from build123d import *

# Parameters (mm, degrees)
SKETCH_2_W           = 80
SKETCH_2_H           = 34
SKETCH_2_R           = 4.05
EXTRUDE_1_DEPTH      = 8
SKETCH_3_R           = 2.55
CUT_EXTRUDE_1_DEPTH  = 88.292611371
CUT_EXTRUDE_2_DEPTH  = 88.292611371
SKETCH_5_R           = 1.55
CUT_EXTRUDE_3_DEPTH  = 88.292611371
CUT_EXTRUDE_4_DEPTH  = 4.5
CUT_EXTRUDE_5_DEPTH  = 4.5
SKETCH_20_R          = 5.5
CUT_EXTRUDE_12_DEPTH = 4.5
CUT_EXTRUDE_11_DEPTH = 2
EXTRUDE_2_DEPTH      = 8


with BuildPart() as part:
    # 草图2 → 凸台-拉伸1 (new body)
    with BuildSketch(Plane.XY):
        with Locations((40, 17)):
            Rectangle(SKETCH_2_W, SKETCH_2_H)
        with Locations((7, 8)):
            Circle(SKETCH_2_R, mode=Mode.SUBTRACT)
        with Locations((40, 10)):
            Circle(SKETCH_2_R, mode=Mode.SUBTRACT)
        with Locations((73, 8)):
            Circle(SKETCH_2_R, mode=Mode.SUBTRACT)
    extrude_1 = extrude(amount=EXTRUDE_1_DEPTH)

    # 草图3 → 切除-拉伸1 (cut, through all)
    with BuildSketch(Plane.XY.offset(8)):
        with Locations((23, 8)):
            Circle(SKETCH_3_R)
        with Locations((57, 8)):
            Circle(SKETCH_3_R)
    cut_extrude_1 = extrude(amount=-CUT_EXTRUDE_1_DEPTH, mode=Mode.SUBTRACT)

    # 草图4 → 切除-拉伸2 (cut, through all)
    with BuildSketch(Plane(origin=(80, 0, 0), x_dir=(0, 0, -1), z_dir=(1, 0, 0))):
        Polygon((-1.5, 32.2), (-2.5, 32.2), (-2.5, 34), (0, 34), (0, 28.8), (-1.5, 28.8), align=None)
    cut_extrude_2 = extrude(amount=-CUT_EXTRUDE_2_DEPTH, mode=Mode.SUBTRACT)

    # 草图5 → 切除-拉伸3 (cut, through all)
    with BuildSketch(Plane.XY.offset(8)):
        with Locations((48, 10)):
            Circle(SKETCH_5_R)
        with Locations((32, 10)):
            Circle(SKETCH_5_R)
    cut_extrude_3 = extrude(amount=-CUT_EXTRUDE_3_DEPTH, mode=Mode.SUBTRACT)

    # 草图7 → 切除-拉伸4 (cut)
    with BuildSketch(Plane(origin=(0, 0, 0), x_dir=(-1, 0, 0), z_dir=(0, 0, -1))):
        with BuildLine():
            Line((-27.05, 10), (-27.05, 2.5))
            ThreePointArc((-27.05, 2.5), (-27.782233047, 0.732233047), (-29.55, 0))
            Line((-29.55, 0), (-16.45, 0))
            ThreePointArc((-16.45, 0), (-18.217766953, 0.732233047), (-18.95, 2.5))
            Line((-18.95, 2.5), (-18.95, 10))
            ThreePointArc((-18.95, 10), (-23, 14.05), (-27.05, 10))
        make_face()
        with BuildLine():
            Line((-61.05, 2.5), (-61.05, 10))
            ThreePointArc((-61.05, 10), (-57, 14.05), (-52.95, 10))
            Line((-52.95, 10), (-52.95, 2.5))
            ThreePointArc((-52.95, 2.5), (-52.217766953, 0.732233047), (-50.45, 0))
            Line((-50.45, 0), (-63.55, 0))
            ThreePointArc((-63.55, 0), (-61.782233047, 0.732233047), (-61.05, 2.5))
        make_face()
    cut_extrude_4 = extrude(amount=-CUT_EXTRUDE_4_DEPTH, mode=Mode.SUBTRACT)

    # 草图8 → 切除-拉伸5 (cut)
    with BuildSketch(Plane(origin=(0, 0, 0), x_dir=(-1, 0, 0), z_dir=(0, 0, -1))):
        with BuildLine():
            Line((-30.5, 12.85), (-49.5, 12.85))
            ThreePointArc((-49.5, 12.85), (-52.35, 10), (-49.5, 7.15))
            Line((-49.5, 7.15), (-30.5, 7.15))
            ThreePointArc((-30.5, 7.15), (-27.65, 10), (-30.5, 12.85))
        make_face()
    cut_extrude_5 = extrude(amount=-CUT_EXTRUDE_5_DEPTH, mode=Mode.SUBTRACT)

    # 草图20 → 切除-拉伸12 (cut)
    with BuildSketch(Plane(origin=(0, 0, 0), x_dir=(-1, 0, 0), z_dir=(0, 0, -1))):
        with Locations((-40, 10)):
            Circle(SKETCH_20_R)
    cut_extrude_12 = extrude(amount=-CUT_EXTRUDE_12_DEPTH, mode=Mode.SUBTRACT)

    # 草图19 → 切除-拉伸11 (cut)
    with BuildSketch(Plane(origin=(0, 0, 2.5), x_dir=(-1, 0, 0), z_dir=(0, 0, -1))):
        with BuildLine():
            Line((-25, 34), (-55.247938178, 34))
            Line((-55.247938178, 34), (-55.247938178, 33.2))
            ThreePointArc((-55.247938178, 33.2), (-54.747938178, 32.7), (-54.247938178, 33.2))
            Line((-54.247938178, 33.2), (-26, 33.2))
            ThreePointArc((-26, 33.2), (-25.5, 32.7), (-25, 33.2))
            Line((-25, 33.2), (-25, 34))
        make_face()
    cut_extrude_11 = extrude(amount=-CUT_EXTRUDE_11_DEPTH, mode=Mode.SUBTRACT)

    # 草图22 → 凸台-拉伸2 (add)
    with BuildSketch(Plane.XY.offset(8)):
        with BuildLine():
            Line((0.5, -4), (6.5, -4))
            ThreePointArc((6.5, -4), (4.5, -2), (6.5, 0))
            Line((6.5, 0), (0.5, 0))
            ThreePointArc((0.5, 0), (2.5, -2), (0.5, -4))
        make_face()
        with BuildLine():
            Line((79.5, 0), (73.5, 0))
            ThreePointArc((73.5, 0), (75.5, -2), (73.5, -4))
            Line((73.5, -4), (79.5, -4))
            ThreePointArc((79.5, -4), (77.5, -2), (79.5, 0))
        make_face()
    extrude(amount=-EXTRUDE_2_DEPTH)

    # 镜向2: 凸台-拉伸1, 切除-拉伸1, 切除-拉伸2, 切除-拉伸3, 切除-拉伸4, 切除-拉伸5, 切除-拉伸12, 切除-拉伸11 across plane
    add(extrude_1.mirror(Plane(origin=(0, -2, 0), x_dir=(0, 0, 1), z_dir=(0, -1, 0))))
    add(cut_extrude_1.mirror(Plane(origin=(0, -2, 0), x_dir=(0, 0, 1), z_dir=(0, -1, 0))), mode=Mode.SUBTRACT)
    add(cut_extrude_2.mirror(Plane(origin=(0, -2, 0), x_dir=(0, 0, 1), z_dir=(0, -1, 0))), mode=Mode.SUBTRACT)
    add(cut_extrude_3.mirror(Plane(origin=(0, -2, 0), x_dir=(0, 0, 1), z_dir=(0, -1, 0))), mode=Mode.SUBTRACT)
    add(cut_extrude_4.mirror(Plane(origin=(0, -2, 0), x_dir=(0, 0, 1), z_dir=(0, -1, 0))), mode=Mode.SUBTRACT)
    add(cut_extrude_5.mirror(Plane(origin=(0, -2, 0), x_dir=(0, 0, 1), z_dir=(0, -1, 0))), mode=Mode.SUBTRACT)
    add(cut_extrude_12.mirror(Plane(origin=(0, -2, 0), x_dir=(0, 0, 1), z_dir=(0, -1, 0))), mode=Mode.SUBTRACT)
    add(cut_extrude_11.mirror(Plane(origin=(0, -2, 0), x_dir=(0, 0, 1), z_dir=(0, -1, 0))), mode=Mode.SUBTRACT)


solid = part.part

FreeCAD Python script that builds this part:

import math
import FreeCAD as App
import Part
import Sketcher

V = App.Vector


def add_polygon(sketch, points):
    """Adds a closed chain of lines whose ends are joined by coincident constraints."""
    first, n = sketch.GeometryCount, len(points)
    for a, b in zip(points, points[1:] + points[:1]):
        sketch.addGeometry(Part.LineSegment(App.Vector(*a, 0), App.Vector(*b, 0)), False)
    for i in range(n):
        sketch.addConstraint(Sketcher.Constraint("Coincident", first + i, 2, first + (i + 1) % n, 1))

doc = App.newDocument("Part")
body = doc.addObject("PartDesign::Body", "Body")

sketch1 = body.newObject("Sketcher::SketchObject", "Sketch")
sketch1.AttachmentSupport = (doc.getObject("XY_Plane"), [""])
sketch1.MapMode = "FlatFace"
add_polygon(sketch1, [(0, 34), (0, 0), (80, 0), (80, 34)])
sketch1.addGeometry(Part.Circle(V(7, 8, 0), V(0, 0, 1), 4.05), False)
sketch1.addGeometry(Part.Circle(V(73, 8, 0), V(0, 0, 1), 4.05), False)
sketch1.addGeometry(Part.Circle(V(40, 10, 0), V(0, 0, 1), 4.05), False)
sketch1.addConstraint([
    Sketcher.Constraint("Vertical", 0),
    Sketcher.Constraint("Horizontal", 1),
    Sketcher.Constraint("Vertical", 2),
    Sketcher.Constraint("Horizontal", 3),
    Sketcher.Constraint("Coincident", 0, 2, -1, 1),
    Sketcher.Constraint("Equal", 4, 5),
    Sketcher.Constraint("Equal", 5, 6),
    Sketcher.Constraint("Horizontal", 4, 3, 5, 3),
    Sketcher.Constraint("Diameter", 4, 8.1),
    Sketcher.Constraint("DistanceX", 1, 1, 1, 2, 80.0),
    Sketcher.Constraint("DistanceY", 0, 2, 0, 1, 34.0),
    Sketcher.Constraint("DistanceX", -1, 1, 4, 3, 7.0),
    Sketcher.Constraint("DistanceY", -1, 1, 4, 3, 8.0),
    Sketcher.Constraint("DistanceX", -1, 1, 5, 3, 73.0),
    Sketcher.Constraint("DistanceX", -1, 1, 6, 3, 40.0),
    Sketcher.Constraint("DistanceY", -1, 1, 6, 3, 10.0),
])
pad1 = body.newObject("PartDesign::Pad", "Pad")
pad1.Profile = sketch1
pad1.Length = 8

sketch2 = body.newObject("Sketcher::SketchObject", "Sketch001")
sketch2.AttachmentSupport = (doc.getObject("XY_Plane"), [""])
sketch2.MapMode = "FlatFace"
sketch2.AttachmentOffset = App.Placement(V(0, 0, 8), App.Rotation())
sketch2.addGeometry([
    Part.Circle(V(23, 8, 0), V(0, 0, 1), 2.55),
    Part.Circle(V(57, 8, 0), V(0, 0, 1), 2.55),
], False)
sketch2.addConstraint([
    Sketcher.Constraint("Equal", 0, 1),
    Sketcher.Constraint("Horizontal", 0, 3, 1, 3),
    Sketcher.Constraint("Diameter", 0, 5.1),
    Sketcher.Constraint("DistanceX", -1, 1, 0, 3, 23.0),
    Sketcher.Constraint("DistanceY", -1, 1, 0, 3, 8.0),
    Sketcher.Constraint("DistanceX", -1, 1, 1, 3, 57.0),
])
pocket1 = body.newObject("PartDesign::Pocket", "Pocket")
pocket1.Profile = sketch2
pocket1.Type = "ThroughAll"

sketch3 = body.newObject("Sketcher::SketchObject", "Sketch002")
sketch3.AttachmentSupport = (doc.getObject("YZ_Plane"), [""])
sketch3.MapMode = "FlatFace"
sketch3.AttachmentOffset = App.Placement(V(0, 0, 80), App.Rotation())
add_polygon(sketch3, [(32.2, 2.5), (32.2, 1.5), (28.8, 1.5), (28.8, 0), (34, 0), (34, 2.5)])
sketch3.addConstraint([
    Sketcher.Constraint("Vertical", 0),
    Sketcher.Constraint("Horizontal", 1),
    Sketcher.Constraint("Vertical", 2),
    Sketcher.Constraint("Horizontal", 3),
    Sketcher.Constraint("Vertical", 4),
    Sketcher.Constraint("Horizontal", 5),
    Sketcher.Constraint("PointOnObject", 2, 2, -1),
    Sketcher.Constraint("DistanceY", 0, 2, 0, 1, 1.0),
    Sketcher.Constraint("DistanceX", 1, 2, 1, 1, 3.4),
    Sketcher.Constraint("DistanceX", 3, 1, 3, 2, 5.2),
    Sketcher.Constraint("DistanceY", 2, 2, 2, 1, 1.5),
    Sketcher.Constraint("DistanceX", -1, 1, 3, 2, 34.0),
])
pocket2 = body.newObject("PartDesign::Pocket", "Pocket001")
pocket2.Profile = sketch3
pocket2.Type = "ThroughAll"

sketch4 = body.newObject("Sketcher::SketchObject", "Sketch003")
sketch4.AttachmentSupport = (doc.getObject("XY_Plane"), [""])
sketch4.MapMode = "FlatFace"
sketch4.AttachmentOffset = App.Placement(V(0, 0, 8), App.Rotation())
sketch4.addGeometry([
    Part.Circle(V(48, 10, 0), V(0, 0, 1), 1.55),
    Part.Circle(V(32, 10, 0), V(0, 0, 1), 1.55),
], False)
sketch4.addConstraint([
    Sketcher.Constraint("Equal", 0, 1),
    Sketcher.Constraint("Horizontal", 0, 3, 1, 3),
    Sketcher.Constraint("Diameter", 0, 3.1),
    Sketcher.Constraint("DistanceX", -1, 1, 0, 3, 48.0),
    Sketcher.Constraint("DistanceY", -1, 1, 0, 3, 10.0),
    Sketcher.Constraint("DistanceX", -1, 1, 1, 3, 32.0),
])
pocket3 = body.newObject("PartDesign::Pocket", "Pocket002")
pocket3.Profile = sketch4
pocket3.Type = "ThroughAll"

sketch5 = body.newObject("Sketcher::SketchObject", "Sketch004")
sketch5.AttachmentSupport = (doc.getObject("XY_Plane"), [""])
sketch5.MapMode = "FlatFace"
sketch5.addGeometry([
    Part.LineSegment(V(27.05, 10, 0), V(27.05, 2.5, 0)),
    Part.ArcOfCircle(Part.Circle(V(29.55, 2.5, 0), V(0, 0, 1), 2.5), math.radians(180), math.radians(270)),
    Part.LineSegment(V(29.55, 0, 0), V(16.45, 0, 0)),
    Part.ArcOfCircle(Part.Circle(V(16.45, 2.5, 0), V(0, 0, 1), 2.5), math.radians(-90), math.radians(0)),
    Part.LineSegment(V(18.95, 2.5, 0), V(18.95, 10, 0)),
    Part.ArcOfCircle(Part.Circle(V(23, 10, 0), V(0, 0, 1), 4.05), math.radians(0), math.radians(180)),
    Part.LineSegment(V(61.05, 10, 0), V(61.05, 2.5, 0)),
    Part.ArcOfCircle(Part.Circle(V(63.55, 2.5, 0), V(0, 0, 1), 2.5), math.radians(180), math.radians(270)),
    Part.LineSegment(V(63.55, 0, 0), V(50.45, 0, 0)),
    Part.ArcOfCircle(Part.Circle(V(50.45, 2.5, 0), V(0, 0, 1), 2.5), math.radians(-90), math.radians(0)),
    Part.LineSegment(V(52.95, 2.5, 0), V(52.95, 10, 0)),
    Part.ArcOfCircle(Part.Circle(V(57, 10, 0), V(0, 0, 1), 4.05), math.radians(0), math.radians(180)),
], False)
sketch5.addConstraint([
    Sketcher.Constraint("Tangent", 0, 2, 1, 1),
    Sketcher.Constraint("Tangent", 1, 2, 2, 1),
    Sketcher.Constraint("Tangent", 2, 2, 3, 1),
    Sketcher.Constraint("Tangent", 3, 2, 4, 1),
    Sketcher.Constraint("Tangent", 4, 2, 5, 2),
    Sketcher.Constraint("Tangent", 5, 1, 0, 1),
    Sketcher.Constraint("Tangent", 6, 2, 7, 1),
    Sketcher.Constraint("Tangent", 7, 2, 8, 1),
    Sketcher.Constraint("Tangent", 8, 2, 9, 1),
    Sketcher.Constraint("Tangent", 9, 2, 10, 1),
    Sketcher.Constraint("Tangent", 10, 2, 11, 2),
    Sketcher.Constraint("Tangent", 11, 1, 6, 1),
    Sketcher.Constraint("Vertical", 0),
    Sketcher.Constraint("Horizontal", 2),
    Sketcher.Constraint("Vertical", 4),
    Sketcher.Constraint("Vertical", 6),
    Sketcher.Constraint("Horizontal", 8),
    Sketcher.Constraint("Vertical", 10),
    Sketcher.Constraint("Equal", 1, 3),
    Sketcher.Constraint("Equal", 3, 7),
    Sketcher.Constraint("Equal", 7, 9),
    Sketcher.Constraint("Equal", 5, 11),
    Sketcher.Constraint("PointOnObject", 1, 2, -1),
    Sketcher.Constraint("PointOnObject", 7, 2, -1),
    Sketcher.Constraint("Horizontal", 5, 3, 11, 3),
    Sketcher.Constraint("Radius", 1, 2.5),
    Sketcher.Constraint("Radius", 5, 4.05),
    Sketcher.Constraint("DistanceY", 0, 2, 0, 1, 7.5),
    Sketcher.Constraint("DistanceX", -1, 1, 5, 3, 23.0),
    Sketcher.Constraint("DistanceX", -1, 1, 11, 3, 57.0),
])
pocket4 = body.newObject("PartDesign::Pocket", "Pocket003")
pocket4.Profile = sketch5
pocket4.Length = 4.5
pocket4.Reversed = True

sketch6 = body.newObject("Sketcher::SketchObject", "Sketch005")
sketch6.AttachmentSupport = (doc.getObject("XY_Plane"), [""])
sketch6.MapMode = "FlatFace"
sketch6.addGeometry([
    Part.LineSegment(V(30.5, 12.85, 0), V(49.5, 12.85, 0)),
    Part.ArcOfCircle(Part.Circle(V(49.5, 10, 0), V(0, 0, 1), 2.85), math.radians(-90), math.radians(90)),
    Part.LineSegment(V(49.5, 7.15, 0), V(30.5, 7.15, 0)),
    Part.ArcOfCircle(Part.Circle(V(30.5, 10, 0), V(0, 0, 1), 2.85), math.radians(90), math.radians(270)),
], False)
sketch6.addConstraint([
    Sketcher.Constraint("Tangent", 0, 2, 1, 2),
    Sketcher.Constraint("Tangent", 1, 1, 2, 1),
    Sketcher.Constraint("Tangent", 2, 2, 3, 2),
    Sketcher.Constraint("Tangent", 3, 1, 0, 1),
    Sketcher.Constraint("Horizontal", 0),
    Sketcher.Constraint("Horizontal", 2),
    Sketcher.Constraint("DistanceX", 0, 1, 0, 2, 19.0),
    Sketcher.Constraint("Radius", 1, 2.85),
    Sketcher.Constraint("DistanceY", -1, 1, 1, 3, 10.0),
    Sketcher.Constraint("DistanceX", -1, 1, 1, 3, 49.5),
])
pocket5 = body.newObject("PartDesign::Pocket", "Pocket004")
pocket5.Profile = sketch6
pocket5.Length = 4.5
pocket5.Reversed = True

sketch7 = body.newObject("Sketcher::SketchObject", "Sketch006")
sketch7.AttachmentSupport = (doc.getObject("XY_Plane"), [""])
sketch7.MapMode = "FlatFace"
sketch7.addGeometry(Part.Circle(V(40, 10, 0), V(0, 0, 1), 5.5), False)
sketch7.addConstraint([
    Sketcher.Constraint("Diameter", 0, 11.0),
    Sketcher.Constraint("DistanceX", -1, 1, 0, 3, 40.0),
    Sketcher.Constraint("DistanceY", -1, 1, 0, 3, 10.0),
])
pocket6 = body.newObject("PartDesign::Pocket", "Pocket005")
pocket6.Profile = sketch7
pocket6.Length = 4.5
pocket6.Reversed = True

sketch8 = body.newObject("Sketcher::SketchObject", "Sketch007")
sketch8.AttachmentSupport = (doc.getObject("XY_Plane"), [""])
sketch8.MapMode = "FlatFace"
sketch8.AttachmentOffset = App.Placement(V(0, 0, 2.5), App.Rotation())
sketch8.addGeometry([
    Part.LineSegment(V(25, 34, 0), V(55.247938, 34, 0)),
    Part.LineSegment(V(55.247938, 34, 0), V(55.247938, 33.2, 0)),
    Part.ArcOfCircle(Part.Circle(V(54.747938, 33.2, 0), V(0, 0, 1), 0.5), math.radians(180), math.radians(360)),
    Part.LineSegment(V(54.247938, 33.2, 0), V(26, 33.2, 0)),
    Part.ArcOfCircle(Part.Circle(V(25.5, 33.2, 0), V(0, 0, 1), 0.5), math.radians(180), math.radians(360)),
    Part.LineSegment(V(25, 33.2, 0), V(25, 34, 0)),
], False)
sketch8.addConstraint([
    Sketcher.Constraint("Coincident", 0, 2, 1, 1),
    Sketcher.Constraint("Tangent", 1, 2, 2, 2),
    Sketcher.Constraint("Coincident", 2, 1, 3, 1),
    Sketcher.Constraint("Coincident", 3, 2, 4, 2),
    Sketcher.Constraint("Tangent", 4, 1, 5, 1),
    Sketcher.Constraint("Coincident", 5, 2, 0, 1),
    Sketcher.Constraint("Horizontal", 0),
    Sketcher.Constraint("Vertical", 1),
    Sketcher.Constraint("Horizontal", 3),
    Sketcher.Constraint("Vertical", 5),
    Sketcher.Constraint("Equal", 2, 4),
    Sketcher.Constraint("Horizontal", 2, 3, 4, 3),
    Sketcher.Constraint("Horizontal", 1, 2, 2, 1),
    Sketcher.Constraint("Radius", 2, 0.5),
    Sketcher.Constraint("DistanceY", 1, 2, 1, 1, 0.8),
    Sketcher.Constraint("DistanceY", -1, 1, 0, 2, 34.0),
    Sketcher.Constraint("DistanceX", -1, 1, 3, 2, 26.0),
    Sketcher.Constraint("DistanceX", 0, 1, 0, 2, 30.247938),
])
pocket7 = body.newObject("PartDesign::Pocket", "Pocket006")
pocket7.Profile = sketch8
pocket7.Length = 2
pocket7.Reversed = True

sketch9 = body.newObject("Sketcher::SketchObject", "Sketch008")
sketch9.AttachmentSupport = (doc.getObject("XY_Plane"), [""])
sketch9.MapMode = "FlatFace"
sketch9.AttachmentOffset = App.Placement(V(0, 0, 8), App.Rotation())
sketch9.addGeometry([
    Part.LineSegment(V(0.5, -4, 0), V(6.5, -4, 0)),
    Part.ArcOfCircle(Part.Circle(V(6.5, -2, 0), V(0, 0, 1), 2), math.radians(90), math.radians(270)),
    Part.LineSegment(V(6.5, 0, 0), V(0.5, 0, 0)),
    Part.ArcOfCircle(Part.Circle(V(0.5, -2, 0), V(0, 0, 1), 2), math.radians(-90), math.radians(90)),
    Part.LineSegment(V(79.5, 0, 0), V(73.5, 0, 0)),
    Part.ArcOfCircle(Part.Circle(V(73.5, -2, 0), V(0, 0, 1), 2), math.radians(-90), math.radians(90)),
    Part.LineSegment(V(73.5, -4, 0), V(79.5, -4, 0)),
    Part.ArcOfCircle(Part.Circle(V(79.5, -2, 0), V(0, 0, 1), 2), math.radians(90), math.radians(270)),
], False)
sketch9.addConstraint([
    Sketcher.Constraint("Tangent", 0, 2, 1, 2),
    Sketcher.Constraint("Tangent", 1, 1, 2, 1),
    Sketcher.Constraint("Tangent", 2, 2, 3, 2),
    Sketcher.Constraint("Tangent", 3, 1, 0, 1),
    Sketcher.Constraint("Tangent", 4, 2, 5, 2),
    Sketcher.Constraint("Tangent", 5, 1, 6, 1),
    Sketcher.Constraint("Tangent", 6, 2, 7, 2),
    Sketcher.Constraint("Tangent", 7, 1, 4, 1),
    Sketcher.Constraint("Horizontal", 0),
    Sketcher.Constraint("Horizontal", 2),
    Sketcher.Constraint("Horizontal", 4),
    Sketcher.Constraint("Horizontal", 6),
    Sketcher.Constraint("Equal", 3, 5),
    Sketcher.Constraint("PointOnObject", 1, 1, -1),
    Sketcher.Constraint("PointOnObject", 4, 2, -1),
    Sketcher.Constraint("Equal", 2, 4),
    Sketcher.Constraint("Radius", 1, 2.0),
    Sketcher.Constraint("DistanceX", 0, 1, 0, 2, 6.0),
    Sketcher.Constraint("DistanceX", 1, 3, 5, 3, 67.0),
    Sketcher.Constraint("DistanceX", -1, 1, 1, 3, 6.5),
])
pad2 = body.newObject("PartDesign::Pad", "Pad001")
pad2.Profile = sketch9
pad2.Length = 8
pad2.Reversed = True
doc.recompute()

datumplane = body.newObject("PartDesign::Plane", "DatumPlane")
datumplane.AttachmentSupport = (doc.getObject("XZ_Plane"), [""])
datumplane.MapMode = "FlatFace"
datumplane.AttachmentOffset = App.Placement(V(0, 0, 2), App.Rotation())
mirrored = body.newObject("PartDesign::Mirrored", "Mirrored")
mirrored.Originals = [pad1, pocket1, pocket2, pocket3, pocket4, pocket5, pocket6, pocket7]
mirrored.MirrorPlane = (datumplane, [""])
body.Tip = mirrored

doc.recompute()
